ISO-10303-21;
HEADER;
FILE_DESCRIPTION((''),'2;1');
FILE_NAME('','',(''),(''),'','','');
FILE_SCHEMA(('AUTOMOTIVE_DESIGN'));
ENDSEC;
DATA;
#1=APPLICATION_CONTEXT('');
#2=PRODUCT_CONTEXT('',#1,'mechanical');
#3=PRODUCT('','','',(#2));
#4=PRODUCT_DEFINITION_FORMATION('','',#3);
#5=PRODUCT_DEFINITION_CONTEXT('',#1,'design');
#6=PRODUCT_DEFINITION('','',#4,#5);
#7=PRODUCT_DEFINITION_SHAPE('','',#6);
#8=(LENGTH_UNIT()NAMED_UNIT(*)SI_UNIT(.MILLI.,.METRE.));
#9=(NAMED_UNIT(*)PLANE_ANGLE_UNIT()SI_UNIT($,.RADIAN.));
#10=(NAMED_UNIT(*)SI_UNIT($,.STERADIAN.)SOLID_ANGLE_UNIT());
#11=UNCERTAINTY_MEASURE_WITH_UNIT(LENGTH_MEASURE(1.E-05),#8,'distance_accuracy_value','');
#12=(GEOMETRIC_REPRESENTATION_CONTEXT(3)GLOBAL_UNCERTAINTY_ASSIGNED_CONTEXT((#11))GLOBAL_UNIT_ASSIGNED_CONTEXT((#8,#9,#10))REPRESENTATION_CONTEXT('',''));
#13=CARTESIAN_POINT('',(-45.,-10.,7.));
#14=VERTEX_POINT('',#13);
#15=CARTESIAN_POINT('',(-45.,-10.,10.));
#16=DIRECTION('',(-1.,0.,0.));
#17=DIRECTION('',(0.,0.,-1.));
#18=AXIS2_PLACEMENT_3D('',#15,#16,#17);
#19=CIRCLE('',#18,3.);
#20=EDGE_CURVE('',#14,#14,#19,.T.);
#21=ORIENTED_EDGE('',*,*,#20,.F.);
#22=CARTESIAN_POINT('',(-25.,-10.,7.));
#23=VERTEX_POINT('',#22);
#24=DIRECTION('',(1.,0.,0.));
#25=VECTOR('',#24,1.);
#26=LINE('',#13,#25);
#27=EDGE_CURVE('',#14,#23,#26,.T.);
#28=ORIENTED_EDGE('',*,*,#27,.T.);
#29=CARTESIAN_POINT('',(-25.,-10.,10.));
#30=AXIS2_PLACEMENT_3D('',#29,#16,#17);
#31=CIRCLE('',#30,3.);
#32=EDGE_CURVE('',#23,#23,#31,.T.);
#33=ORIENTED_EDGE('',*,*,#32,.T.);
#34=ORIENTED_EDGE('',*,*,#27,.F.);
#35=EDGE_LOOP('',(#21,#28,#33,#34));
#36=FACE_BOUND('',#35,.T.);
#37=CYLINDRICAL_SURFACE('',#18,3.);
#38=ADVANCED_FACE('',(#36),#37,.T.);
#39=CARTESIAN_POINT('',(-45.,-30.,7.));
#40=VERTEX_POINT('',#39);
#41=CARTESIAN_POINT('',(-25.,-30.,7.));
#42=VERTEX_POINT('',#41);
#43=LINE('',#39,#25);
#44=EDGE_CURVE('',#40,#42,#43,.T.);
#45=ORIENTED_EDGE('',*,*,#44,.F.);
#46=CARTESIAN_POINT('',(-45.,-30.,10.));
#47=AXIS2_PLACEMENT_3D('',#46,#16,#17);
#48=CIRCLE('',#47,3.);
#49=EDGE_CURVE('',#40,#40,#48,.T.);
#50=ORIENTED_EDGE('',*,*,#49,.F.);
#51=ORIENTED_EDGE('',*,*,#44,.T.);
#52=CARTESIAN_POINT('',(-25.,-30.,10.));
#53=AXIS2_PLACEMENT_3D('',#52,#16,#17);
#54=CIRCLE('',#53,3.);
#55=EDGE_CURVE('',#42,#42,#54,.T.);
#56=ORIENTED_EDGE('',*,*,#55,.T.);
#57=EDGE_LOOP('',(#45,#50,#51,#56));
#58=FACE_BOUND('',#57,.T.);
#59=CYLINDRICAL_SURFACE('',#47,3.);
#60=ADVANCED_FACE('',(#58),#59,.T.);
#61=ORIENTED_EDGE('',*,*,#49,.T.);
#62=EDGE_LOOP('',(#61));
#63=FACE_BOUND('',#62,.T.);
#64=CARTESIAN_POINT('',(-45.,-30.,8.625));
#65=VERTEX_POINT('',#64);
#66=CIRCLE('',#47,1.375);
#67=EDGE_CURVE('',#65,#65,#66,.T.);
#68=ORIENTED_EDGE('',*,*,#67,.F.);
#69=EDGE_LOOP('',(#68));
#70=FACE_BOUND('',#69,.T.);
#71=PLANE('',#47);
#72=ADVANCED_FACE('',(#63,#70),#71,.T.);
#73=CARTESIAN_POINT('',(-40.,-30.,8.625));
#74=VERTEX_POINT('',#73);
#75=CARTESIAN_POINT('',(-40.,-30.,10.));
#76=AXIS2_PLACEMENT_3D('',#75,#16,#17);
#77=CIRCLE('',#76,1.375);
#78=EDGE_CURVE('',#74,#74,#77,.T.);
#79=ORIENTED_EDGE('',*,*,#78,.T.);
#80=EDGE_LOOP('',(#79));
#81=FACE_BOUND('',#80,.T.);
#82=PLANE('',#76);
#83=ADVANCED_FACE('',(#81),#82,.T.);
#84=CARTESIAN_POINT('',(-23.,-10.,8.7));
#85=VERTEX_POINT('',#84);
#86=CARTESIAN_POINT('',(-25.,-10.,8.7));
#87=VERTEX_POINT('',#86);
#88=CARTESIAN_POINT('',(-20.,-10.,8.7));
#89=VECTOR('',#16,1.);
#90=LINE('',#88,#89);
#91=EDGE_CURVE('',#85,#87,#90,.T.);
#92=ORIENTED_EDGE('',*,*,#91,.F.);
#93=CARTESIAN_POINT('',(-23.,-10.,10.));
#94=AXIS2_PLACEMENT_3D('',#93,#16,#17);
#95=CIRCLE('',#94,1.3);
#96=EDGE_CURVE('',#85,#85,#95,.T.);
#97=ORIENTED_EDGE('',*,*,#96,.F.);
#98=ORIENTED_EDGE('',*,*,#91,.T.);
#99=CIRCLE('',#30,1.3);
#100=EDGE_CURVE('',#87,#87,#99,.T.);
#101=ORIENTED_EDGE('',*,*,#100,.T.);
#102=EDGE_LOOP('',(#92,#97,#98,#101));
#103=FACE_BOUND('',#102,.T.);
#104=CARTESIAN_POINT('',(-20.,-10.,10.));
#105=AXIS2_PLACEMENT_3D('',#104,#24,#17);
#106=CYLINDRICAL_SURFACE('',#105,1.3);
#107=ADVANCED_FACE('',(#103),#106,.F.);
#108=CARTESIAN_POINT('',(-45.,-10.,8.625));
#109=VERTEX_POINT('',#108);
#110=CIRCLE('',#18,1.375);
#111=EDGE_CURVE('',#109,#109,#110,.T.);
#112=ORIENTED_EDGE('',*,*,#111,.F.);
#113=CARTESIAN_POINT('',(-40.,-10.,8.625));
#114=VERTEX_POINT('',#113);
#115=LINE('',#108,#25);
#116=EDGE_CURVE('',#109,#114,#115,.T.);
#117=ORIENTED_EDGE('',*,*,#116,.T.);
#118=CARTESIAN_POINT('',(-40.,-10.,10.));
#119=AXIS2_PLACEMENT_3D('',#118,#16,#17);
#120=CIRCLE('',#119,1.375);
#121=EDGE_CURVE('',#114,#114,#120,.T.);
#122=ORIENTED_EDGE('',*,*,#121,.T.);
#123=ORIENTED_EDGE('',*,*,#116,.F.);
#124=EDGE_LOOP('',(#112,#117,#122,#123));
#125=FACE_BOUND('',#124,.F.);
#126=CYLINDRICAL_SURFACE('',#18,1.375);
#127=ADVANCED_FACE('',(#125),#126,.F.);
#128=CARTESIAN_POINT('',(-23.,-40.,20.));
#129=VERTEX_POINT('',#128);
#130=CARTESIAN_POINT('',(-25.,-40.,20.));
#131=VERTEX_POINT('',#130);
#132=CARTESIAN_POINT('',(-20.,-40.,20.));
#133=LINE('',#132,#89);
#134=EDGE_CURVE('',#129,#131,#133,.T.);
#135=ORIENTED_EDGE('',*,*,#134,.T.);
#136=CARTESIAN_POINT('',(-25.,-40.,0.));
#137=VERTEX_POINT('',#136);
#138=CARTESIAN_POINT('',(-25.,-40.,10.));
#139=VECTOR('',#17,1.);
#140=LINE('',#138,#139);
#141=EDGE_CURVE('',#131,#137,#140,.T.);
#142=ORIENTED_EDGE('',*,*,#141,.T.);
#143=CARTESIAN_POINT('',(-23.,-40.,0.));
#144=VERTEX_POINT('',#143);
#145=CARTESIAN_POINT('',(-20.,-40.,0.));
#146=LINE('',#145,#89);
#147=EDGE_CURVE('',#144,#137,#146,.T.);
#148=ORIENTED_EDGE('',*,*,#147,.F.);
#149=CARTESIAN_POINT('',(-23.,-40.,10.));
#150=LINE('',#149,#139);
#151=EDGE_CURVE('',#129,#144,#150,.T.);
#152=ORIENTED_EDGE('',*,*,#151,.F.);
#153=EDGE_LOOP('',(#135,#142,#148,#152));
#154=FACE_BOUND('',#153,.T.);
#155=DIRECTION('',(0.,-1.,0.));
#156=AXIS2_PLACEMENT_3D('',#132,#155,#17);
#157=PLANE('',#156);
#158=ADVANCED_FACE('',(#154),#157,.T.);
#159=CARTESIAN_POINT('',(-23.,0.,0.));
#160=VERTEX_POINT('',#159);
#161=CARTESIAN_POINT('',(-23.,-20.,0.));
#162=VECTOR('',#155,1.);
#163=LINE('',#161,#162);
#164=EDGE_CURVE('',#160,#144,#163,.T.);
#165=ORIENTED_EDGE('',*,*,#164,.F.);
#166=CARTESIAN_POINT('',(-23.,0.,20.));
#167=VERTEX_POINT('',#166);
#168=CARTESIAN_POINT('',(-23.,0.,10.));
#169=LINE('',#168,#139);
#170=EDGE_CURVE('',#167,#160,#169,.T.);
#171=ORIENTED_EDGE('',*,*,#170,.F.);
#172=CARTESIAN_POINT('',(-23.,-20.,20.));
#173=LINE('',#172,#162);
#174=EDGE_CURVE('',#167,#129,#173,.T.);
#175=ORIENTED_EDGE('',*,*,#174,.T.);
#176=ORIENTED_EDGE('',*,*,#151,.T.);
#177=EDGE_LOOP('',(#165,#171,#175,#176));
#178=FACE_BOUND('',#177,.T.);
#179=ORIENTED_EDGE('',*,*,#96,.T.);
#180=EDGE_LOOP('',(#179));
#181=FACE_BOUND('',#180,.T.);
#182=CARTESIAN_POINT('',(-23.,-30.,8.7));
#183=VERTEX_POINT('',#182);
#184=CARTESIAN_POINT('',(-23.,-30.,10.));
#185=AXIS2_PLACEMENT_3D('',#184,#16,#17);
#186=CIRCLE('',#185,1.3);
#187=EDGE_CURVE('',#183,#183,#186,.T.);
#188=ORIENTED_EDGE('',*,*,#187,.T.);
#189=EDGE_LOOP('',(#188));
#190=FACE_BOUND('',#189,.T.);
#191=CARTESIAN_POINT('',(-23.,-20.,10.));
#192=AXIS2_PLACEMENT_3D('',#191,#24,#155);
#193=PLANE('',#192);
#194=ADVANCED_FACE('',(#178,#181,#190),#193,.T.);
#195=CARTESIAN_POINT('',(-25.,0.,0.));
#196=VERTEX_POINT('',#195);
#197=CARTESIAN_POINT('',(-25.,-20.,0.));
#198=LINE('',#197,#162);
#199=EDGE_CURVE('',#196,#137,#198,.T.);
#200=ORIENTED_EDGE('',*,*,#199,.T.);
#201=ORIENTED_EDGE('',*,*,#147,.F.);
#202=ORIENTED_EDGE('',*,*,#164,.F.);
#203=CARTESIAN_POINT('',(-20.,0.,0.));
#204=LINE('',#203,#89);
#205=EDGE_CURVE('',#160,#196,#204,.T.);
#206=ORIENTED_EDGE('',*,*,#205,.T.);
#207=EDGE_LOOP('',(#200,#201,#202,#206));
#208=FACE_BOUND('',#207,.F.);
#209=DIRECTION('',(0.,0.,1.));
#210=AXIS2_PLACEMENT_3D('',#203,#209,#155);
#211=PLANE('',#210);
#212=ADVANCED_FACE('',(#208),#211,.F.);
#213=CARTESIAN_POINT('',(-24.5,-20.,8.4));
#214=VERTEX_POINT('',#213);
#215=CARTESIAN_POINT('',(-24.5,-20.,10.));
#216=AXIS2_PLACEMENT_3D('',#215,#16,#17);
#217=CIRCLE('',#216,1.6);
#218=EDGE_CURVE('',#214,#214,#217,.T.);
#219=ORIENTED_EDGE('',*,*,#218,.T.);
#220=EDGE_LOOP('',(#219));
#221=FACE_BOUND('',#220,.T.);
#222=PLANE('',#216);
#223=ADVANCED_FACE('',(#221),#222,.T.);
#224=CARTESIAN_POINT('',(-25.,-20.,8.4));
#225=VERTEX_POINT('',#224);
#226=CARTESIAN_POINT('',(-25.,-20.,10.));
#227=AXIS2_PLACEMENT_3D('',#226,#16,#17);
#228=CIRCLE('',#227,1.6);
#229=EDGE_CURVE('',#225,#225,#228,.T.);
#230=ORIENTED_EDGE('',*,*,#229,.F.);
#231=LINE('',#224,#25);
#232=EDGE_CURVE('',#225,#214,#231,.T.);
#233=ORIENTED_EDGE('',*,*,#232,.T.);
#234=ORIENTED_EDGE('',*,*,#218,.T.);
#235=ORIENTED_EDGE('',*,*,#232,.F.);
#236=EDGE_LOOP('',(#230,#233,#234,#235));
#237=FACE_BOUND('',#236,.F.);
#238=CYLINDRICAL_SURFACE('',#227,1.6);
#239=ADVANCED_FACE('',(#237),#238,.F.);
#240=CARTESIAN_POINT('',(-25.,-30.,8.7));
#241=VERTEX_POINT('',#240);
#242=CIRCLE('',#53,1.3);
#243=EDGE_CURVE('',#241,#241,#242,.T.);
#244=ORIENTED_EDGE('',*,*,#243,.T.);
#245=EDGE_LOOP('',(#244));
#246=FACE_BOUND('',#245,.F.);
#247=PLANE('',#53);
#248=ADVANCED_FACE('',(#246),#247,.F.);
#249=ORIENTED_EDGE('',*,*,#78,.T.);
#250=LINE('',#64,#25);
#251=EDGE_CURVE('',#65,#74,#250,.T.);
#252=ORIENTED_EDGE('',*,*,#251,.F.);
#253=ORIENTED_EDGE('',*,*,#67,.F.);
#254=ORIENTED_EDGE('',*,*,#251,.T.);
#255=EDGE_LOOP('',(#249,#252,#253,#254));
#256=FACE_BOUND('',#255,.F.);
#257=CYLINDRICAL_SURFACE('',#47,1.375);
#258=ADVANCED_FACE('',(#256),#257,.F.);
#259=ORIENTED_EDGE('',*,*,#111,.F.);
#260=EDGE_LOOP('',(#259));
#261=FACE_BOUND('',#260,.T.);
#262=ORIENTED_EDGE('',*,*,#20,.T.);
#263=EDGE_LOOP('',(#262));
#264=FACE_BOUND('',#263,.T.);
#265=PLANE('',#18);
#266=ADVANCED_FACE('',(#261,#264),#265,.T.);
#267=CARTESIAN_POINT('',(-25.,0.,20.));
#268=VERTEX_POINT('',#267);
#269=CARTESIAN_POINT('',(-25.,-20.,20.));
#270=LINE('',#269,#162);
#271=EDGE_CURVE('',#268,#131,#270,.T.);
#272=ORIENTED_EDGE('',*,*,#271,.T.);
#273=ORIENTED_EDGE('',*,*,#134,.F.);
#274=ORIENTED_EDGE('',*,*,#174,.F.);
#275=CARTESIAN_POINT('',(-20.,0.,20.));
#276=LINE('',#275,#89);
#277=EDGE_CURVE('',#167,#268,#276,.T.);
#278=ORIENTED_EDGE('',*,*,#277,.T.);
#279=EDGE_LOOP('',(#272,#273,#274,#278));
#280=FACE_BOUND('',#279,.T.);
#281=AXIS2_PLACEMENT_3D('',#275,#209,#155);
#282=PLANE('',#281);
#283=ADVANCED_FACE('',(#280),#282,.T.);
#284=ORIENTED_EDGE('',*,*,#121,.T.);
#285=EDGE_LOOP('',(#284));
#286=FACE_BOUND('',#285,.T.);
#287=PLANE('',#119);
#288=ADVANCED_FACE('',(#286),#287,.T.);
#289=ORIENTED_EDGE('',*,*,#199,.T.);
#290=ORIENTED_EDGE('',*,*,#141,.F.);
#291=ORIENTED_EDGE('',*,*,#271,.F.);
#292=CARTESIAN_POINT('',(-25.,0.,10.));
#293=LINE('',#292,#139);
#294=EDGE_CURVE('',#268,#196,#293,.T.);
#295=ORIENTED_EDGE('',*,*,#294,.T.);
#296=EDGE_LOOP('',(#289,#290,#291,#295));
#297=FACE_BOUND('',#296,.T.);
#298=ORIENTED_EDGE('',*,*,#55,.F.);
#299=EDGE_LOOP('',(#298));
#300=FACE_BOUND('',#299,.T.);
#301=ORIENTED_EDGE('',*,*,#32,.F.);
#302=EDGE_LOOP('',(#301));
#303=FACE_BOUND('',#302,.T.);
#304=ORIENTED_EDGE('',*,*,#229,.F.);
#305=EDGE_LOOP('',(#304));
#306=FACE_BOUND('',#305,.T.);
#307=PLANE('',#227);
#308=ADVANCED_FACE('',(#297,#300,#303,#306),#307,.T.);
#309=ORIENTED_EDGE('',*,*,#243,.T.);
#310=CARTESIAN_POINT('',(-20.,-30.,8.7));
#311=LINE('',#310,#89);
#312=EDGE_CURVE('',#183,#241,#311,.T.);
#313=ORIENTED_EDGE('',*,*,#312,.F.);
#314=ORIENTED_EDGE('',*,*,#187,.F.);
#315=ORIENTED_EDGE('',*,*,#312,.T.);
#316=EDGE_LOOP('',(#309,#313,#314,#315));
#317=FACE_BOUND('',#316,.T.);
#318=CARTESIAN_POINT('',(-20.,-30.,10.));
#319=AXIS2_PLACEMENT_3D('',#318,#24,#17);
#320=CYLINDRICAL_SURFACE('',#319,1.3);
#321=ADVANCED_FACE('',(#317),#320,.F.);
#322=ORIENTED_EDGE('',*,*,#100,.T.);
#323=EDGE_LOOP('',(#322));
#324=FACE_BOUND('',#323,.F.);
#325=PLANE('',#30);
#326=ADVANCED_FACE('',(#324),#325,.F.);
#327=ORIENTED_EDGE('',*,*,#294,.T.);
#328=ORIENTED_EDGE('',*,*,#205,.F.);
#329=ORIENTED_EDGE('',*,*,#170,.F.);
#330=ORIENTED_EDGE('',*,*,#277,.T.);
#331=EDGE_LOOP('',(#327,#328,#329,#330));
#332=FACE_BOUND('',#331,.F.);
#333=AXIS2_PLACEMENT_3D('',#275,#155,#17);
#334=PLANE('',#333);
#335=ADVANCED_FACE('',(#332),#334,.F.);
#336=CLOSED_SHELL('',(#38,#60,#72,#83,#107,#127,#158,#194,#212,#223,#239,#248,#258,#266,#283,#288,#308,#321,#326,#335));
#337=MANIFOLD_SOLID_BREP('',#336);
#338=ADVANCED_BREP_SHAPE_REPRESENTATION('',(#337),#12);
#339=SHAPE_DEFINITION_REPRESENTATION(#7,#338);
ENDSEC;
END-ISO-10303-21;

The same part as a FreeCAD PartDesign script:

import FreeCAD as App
import Part
import Sketcher
from FreeCAD import Vector


def add_polygon(sketch, points):
    """Adds a closed chain of lines whose ends are joined by coincident constraints."""
    first, n = sketch.GeometryCount, len(points)
    for a, b in zip(points, points[1:] + points[:1]):
        sketch.addGeometry(Part.LineSegment(App.Vector(*a, 0), App.Vector(*b, 0)), False)
    for i in range(n):
        sketch.addConstraint(Sketcher.Constraint("Coincident", first + i, 2, first + (i + 1) % n, 1))

doc = App.newDocument("Part")
body = doc.addObject("PartDesign::Body", "Body")

sketch1 = doc.addObject("Sketcher::SketchObject", "Sketch")
body.addObject(sketch1)
sketch1.AttachmentSupport = (doc.YZ_Plane, [""])
sketch1.MapMode = "FlatFace"
add_polygon(sketch1, [(-40, 20), (0, 20), (0, 0), (-40, 0)])
sketch1.addGeometry(Part.Circle(Vector(-10, 10, 0), Vector(0, 0, 1), 1.3), False)
sketch1.addGeometry(Part.Circle(Vector(-30, 10, 0), Vector(0, 0, 1), 1.3), False)
sketch1.addConstraint([
    Sketcher.Constraint("Horizontal", 0),
    Sketcher.Constraint("Vertical", 1),
    Sketcher.Constraint("Horizontal", 2),
    Sketcher.Constraint("Vertical", 3),
    Sketcher.Constraint("Coincident", 1, 2, -1, 1),
    Sketcher.Constraint("Equal", 4, 5),
    Sketcher.Constraint("Horizontal", 4, 3, 5, 3),
    Sketcher.Constraint("Diameter", 4, 2.6),
    Sketcher.Constraint("DistanceX", 0, 1, 0, 2, 40.0),
    Sketcher.Constraint("DistanceY", 1, 2, 1, 1, 20.0),
    Sketcher.Constraint("DistanceX", 4, 3, -1, 1, 10.0),
    Sketcher.Constraint("DistanceY", -1, 1, 4, 3, 10.0),
    Sketcher.Constraint("DistanceX", 5, 3, -1, 1, 30.0),
])
pad1 = doc.addObject("PartDesign::Pad", "Pad")
body.addObject(pad1)
pad1.Profile = sketch1
pad1.Length = 5
pad1.Reversed = True

sketch2 = doc.addObject("Sketcher::SketchObject", "Sketch001")
body.addObject(sketch2)
sketch2.AttachmentSupport = (doc.YZ_Plane, [""])
sketch2.MapMode = "FlatFace"
sketch2.AttachmentOffset = App.Placement(Vector(0, 0, -5), App.Rotation())
sketch2.addGeometry([
    Part.Circle(Vector(-30, 10, 0), Vector(0, 0, 1), 2.5),
    Part.Circle(Vector(-10, 10, 0), Vector(0, 0, 1), 2.5),
], False)
sketch2.addConstraint([
    Sketcher.Constraint("Equal", 0, 1),
    Sketcher.Constraint("Horizontal", 0, 3, 1, 3),
    Sketcher.Constraint("Diameter", 0, 5.0),
    Sketcher.Constraint("DistanceX", 0, 3, -1, 1, 30.0),
    Sketcher.Constraint("DistanceY", -1, 1, 0, 3, 10.0),
    Sketcher.Constraint("DistanceX", 1, 3, -1, 1, 10.0),
])
pad2 = doc.addObject("PartDesign::Pad", "Pad001")
body.addObject(pad2)
pad2.Profile = sketch2
pad2.Length = 20
pad2.Reversed = True

sketch3 = doc.addObject("Sketcher::SketchObject", "Sketch002")
body.addObject(sketch3)
sketch3.AttachmentSupport = (doc.YZ_Plane, [""])
sketch3.MapMode = "FlatFace"
sketch3.AttachmentOffset = App.Placement(Vector(0, 0, -5), App.Rotation())
sketch3.addGeometry(Part.Circle(Vector(-20, 10, 0), Vector(0, 0, 1), 1.6), False)
sketch3.addConstraint([
    Sketcher.Constraint("Diameter", 0, 3.2),
    Sketcher.Constraint("DistanceX", 0, 3, -1, 1, 20.0),
    Sketcher.Constraint("DistanceY", -1, 1, 0, 3, 10.0),
])
pocket1 = doc.addObject("PartDesign::Pocket", "Pocket")
body.addObject(pocket1)
pocket1.Profile = sketch3
pocket1.Length = 0.5
pocket1.Reversed = True

sketch4 = doc.addObject("Sketcher::SketchObject", "Sketch003")
body.addObject(sketch4)
sketch4.AttachmentSupport = (doc.YZ_Plane, [""])
sketch4.MapMode = "FlatFace"
add_polygon(sketch4, [(0, 0), (0, 20), (-40, 20), (-40, 0)])
sketch4.addGeometry(Part.Circle(Vector(-10, 10, 0), Vector(0, 0, 1), 1.3), False)
sketch4.addGeometry(Part.Circle(Vector(-30, 10, 0), Vector(0, 0, 1), 1.3), False)
sketch4.addConstraint([
    Sketcher.Constraint("Vertical", 0),
    Sketcher.Constraint("Horizontal", 1),
    Sketcher.Constraint("Vertical", 2),
    Sketcher.Constraint("Horizontal", 3),
    Sketcher.Constraint("Coincident", 3, 2, -1, 1),
    Sketcher.Constraint("Equal", 4, 5),
    Sketcher.Constraint("Horizontal", 4, 3, 5, 3),
    Sketcher.Constraint("Diameter", 4, 2.6),
    Sketcher.Constraint("DistanceX", 1, 2, 1, 1, 40.0),
    Sketcher.Constraint("DistanceY", 0, 1, 0, 2, 20.0),
    Sketcher.Constraint("DistanceX", 4, 3, -1, 1, 10.0),
    Sketcher.Constraint("DistanceY", -1, 1, 4, 3, 10.0),
    Sketcher.Constraint("DistanceX", 5, 3, -1, 1, 30.0),
])
pocket2 = doc.addObject("PartDesign::Pocket", "Pocket001")
body.addObject(pocket2)
pocket2.Profile = sketch4
pocket2.Length = 3

sketch5 = doc.addObject("Sketcher::SketchObject", "Sketch004")
body.addObject(sketch5)
sketch5.AttachmentSupport = (doc.YZ_Plane, [""])
sketch5.MapMode = "FlatFace"
sketch5.AttachmentOffset = App.Placement(Vector(0, 0, -25), App.Rotation())
sketch5.addGeometry([
    Part.Circle(Vector(-10, 10, 0), Vector(0, 0, 1), 1.3),
    Part.Circle(Vector(-30, 10, 0), Vector(0, 0, 1), 1.3),
], False)
sketch5.addConstraint([
    Sketcher.Constraint("Equal", 0, 1),
    Sketcher.Constraint("Horizontal", 0, 3, 1, 3),
    Sketcher.Constraint("Diameter", 0, 2.6),
    Sketcher.Constraint("DistanceX", 0, 3, -1, 1, 10.0),
    Sketcher.Constraint("DistanceY", -1, 1, 0, 3, 10.0),
    Sketcher.Constraint("DistanceX", 1, 3, -1, 1, 30.0),
])
pocket3 = doc.addObject("PartDesign::Pocket", "Pocket002")
body.addObject(pocket3)
pocket3.Profile = sketch5
pocket3.Length = 5
pocket3.Reversed = True

sketch6 = doc.addObject("Sketcher::SketchObject", "Sketch005")
body.addObject(sketch6)
sketch6.AttachmentSupport = (doc.YZ_Plane, [""])
sketch6.MapMode = "FlatFace"
sketch6.AttachmentOffset = App.Placement(Vector(0, 0, -25), App.Rotation())
sketch6.addGeometry([
    Part.Circle(Vector(-30, 10, 0), Vector(0, 0, 1), 3),
    Part.Circle(Vector(-30, 10, 0), Vector(0, 0, 1), 2.5),
    Part.Circle(Vector(-10, 10, 0), Vector(0, 0, 1), 3),
    Part.Circle(Vector(-10, 10, 0), Vector(0, 0, 1), 2.5),
], False)
sketch6.addConstraint([
    Sketcher.Constraint("Coincident", 1, 3, 0, 3),
    Sketcher.Constraint("Coincident", 3, 3, 2, 3),
    Sketcher.Constraint("Equal", 0, 2),
    Sketcher.Constraint("Equal", 1, 3),
    Sketcher.Constraint("Horizontal", 1, 3, 2, 3),
    Sketcher.Constraint("Diameter", 0, 6.0),
    Sketcher.Constraint("Diameter", 1, 5.0),
    Sketcher.Constraint("DistanceX", 0, 3, -1, 1, 30.0),
    Sketcher.Constraint("DistanceY", -1, 1, 0, 3, 10.0),
    Sketcher.Constraint("DistanceX", 2, 3, -1, 1, 10.0),
])
pad3 = doc.addObject("PartDesign::Pad", "Pad002")
body.addObject(pad3)
pad3.Profile = sketch6
pad3.Length = 20

sketch7 = doc.addObject("Sketcher::SketchObject", "Sketch006")
body.addObject(sketch7)
sketch7.AttachmentSupport = (doc.YZ_Plane, [""])
sketch7.MapMode = "FlatFace"
sketch7.AttachmentOffset = App.Placement(Vector(0, 0, -25), App.Rotation())
sketch7.addGeometry([
    Part.Circle(Vector(-30, 10, 0), Vector(0, 0, 1), 1.4),
    Part.Circle(Vector(-10, 10, 0), Vector(0, 0, 1), 1.4),
], False)
sketch7.addConstraint([
    Sketcher.Constraint("Equal", 0, 1),
    Sketcher.Constraint("Horizontal", 0, 3, 1, 3),
    Sketcher.Constraint("Diameter", 0, 2.75),
    Sketcher.Constraint("DistanceX", 0, 3, -1, 1, 30.0),
    Sketcher.Constraint("DistanceY", -1, 1, 0, 3, 10.0),
    Sketcher.Constraint("DistanceX", 1, 3, -1, 1, 10.0),
])
pocket4 = doc.addObject("PartDesign::Pocket", "Pocket003")
body.addObject(pocket4)
pocket4.Profile = sketch7
pocket4.Length = 5
pocket4.Reversed = True
body2 = doc.addObject("PartDesign::Body", "Body001")
doc.recompute()

body.Placement = App.Placement(Vector(-20, 0, 0), App.Rotation(Vector(0, 0, 1), 0))
boolean = doc.addObject("PartDesign::Boolean", "Boolean")
body2.addObject(boolean)
boolean.Type = "Fuse"
boolean.addObjects([body])

doc.recompute()
